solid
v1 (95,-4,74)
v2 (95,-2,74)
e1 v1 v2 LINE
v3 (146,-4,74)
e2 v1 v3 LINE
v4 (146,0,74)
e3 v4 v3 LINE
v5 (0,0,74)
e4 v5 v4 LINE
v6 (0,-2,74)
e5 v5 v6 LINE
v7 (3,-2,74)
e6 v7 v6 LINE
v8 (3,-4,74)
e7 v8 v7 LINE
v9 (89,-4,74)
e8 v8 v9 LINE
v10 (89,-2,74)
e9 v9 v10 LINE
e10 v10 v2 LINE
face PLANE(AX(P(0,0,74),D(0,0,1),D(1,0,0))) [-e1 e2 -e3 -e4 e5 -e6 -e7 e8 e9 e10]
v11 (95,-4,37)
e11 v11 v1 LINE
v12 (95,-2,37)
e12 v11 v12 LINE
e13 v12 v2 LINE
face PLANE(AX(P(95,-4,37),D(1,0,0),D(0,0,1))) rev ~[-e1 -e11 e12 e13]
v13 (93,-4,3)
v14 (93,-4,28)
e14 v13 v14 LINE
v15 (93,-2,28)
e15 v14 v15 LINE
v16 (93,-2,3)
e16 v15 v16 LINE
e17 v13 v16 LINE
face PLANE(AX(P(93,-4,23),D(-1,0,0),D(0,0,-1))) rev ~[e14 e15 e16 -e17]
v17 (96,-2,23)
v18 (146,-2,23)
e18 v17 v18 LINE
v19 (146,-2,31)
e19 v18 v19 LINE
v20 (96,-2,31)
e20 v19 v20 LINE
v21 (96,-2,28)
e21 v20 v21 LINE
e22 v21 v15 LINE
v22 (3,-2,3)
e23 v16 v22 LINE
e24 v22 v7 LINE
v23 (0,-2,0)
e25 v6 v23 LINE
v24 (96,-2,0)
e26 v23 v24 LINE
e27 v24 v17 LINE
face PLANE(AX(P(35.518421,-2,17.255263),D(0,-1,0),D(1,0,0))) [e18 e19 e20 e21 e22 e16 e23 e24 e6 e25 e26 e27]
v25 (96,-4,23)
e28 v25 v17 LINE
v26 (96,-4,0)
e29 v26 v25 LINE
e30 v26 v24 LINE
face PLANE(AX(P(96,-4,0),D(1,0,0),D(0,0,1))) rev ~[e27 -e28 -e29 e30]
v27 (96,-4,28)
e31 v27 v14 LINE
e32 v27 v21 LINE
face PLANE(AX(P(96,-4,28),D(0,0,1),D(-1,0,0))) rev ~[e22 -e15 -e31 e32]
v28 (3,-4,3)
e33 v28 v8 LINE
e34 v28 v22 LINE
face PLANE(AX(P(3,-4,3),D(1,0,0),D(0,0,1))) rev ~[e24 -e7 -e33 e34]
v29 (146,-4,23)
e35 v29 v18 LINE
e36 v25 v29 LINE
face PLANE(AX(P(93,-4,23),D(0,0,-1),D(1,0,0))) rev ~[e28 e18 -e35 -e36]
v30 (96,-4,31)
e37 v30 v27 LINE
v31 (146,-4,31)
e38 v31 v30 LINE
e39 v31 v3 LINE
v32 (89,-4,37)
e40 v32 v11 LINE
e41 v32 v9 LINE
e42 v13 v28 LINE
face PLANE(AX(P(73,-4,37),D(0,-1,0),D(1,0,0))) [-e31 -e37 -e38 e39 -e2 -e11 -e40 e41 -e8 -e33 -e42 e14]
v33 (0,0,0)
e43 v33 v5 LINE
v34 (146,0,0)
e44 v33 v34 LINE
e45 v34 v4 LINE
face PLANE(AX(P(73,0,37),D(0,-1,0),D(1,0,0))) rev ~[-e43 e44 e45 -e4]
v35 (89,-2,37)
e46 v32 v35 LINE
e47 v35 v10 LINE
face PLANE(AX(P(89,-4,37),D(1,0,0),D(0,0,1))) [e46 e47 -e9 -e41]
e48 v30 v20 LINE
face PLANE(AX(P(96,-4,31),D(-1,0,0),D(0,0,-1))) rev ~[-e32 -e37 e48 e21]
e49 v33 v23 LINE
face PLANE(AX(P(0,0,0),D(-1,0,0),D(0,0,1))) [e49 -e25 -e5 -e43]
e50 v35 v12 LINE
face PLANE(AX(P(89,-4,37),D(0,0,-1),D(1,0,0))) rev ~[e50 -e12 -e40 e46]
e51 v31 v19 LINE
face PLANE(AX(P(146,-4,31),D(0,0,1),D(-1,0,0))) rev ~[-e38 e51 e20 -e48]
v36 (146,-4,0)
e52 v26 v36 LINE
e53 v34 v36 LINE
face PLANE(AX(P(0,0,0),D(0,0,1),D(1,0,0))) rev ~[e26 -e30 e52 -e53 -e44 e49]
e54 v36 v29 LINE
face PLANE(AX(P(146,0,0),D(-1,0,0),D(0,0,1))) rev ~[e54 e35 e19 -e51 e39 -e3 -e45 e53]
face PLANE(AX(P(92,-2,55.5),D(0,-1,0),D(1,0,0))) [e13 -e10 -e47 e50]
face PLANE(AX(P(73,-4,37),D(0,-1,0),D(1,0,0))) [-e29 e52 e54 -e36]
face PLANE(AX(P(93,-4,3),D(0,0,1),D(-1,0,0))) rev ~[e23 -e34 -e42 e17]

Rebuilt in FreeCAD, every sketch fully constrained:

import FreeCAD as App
import Part
import Sketcher

V = App.Vector


def add_polygon(sketch, points):
    """Adds a closed chain of lines whose ends are joined by coincident constraints."""
    first, n = sketch.GeometryCount, len(points)
    for a, b in zip(points, points[1:] + points[:1]):
        sketch.addGeometry(Part.LineSegment(App.Vector(*a, 0), App.Vector(*b, 0)), False)
    for i in range(n):
        sketch.addConstraint(Sketcher.Constraint("Coincident", first + i, 2, first + (i + 1) % n, 1))

doc = App.newDocument("Part")
body = doc.addObject("PartDesign::Body", "Body")

# Sketch on XZ plane
sketch1 = body.newObject("Sketcher::SketchObject", "Sketch")
sketch1.AttachmentSupport = (doc.getObject("XZ_Plane"), [""])
sketch1.MapMode = "FlatFace"
add_polygon(sketch1, [(0, 74), (0, 0), (146, 0), (146, 74)])  # lines 0-3
sketch1.addConstraint([
    Sketcher.Constraint("Vertical", 0),
    Sketcher.Constraint("Horizontal", 1),
    Sketcher.Constraint("Vertical", 2),
    Sketcher.Constraint("Horizontal", 3),
    Sketcher.Constraint("Coincident", 0, 2, -1, 1),
    Sketcher.Constraint("DistanceX", 1, 1, 1, 2, 146.0),
    Sketcher.Constraint("DistanceY", 0, 2, 0, 1, 74.0),
])
pad1 = body.newObject("PartDesign::Pad", "Pad")
pad1.Profile = sketch1
pad1.Length = 4

# Sketch on XZ plane
sketch2 = body.newObject("Sketcher::SketchObject", "Sketch001")
sketch2.AttachmentSupport = (doc.getObject("XZ_Plane"), [""])
sketch2.MapMode = "FlatFace"
sketch2.AttachmentOffset = App.Placement(V(0, 0, 4), App.Rotation())
add_polygon(sketch2, [(3, 3), (3, 74), (0, 74), (0, 0), (96, 0), (96, 23), (93, 23), (93, 3)])  # lines 0-7
sketch2.addConstraint([
    Sketcher.Constraint("Vertical", 0),
    Sketcher.Constraint("Horizontal", 1),
    Sketcher.Constraint("Vertical", 2),
    Sketcher.Constraint("Horizontal", 3),
    Sketcher.Constraint("Vertical", 4),
    Sketcher.Constraint("Horizontal", 5),
    Sketcher.Constraint("Vertical", 6),
    Sketcher.Constraint("Horizontal", 7),
    Sketcher.Constraint("Coincident", 2, 2, -1, 1),
    Sketcher.Constraint("Equal", 1, 5),
    Sketcher.Constraint("DistanceX", 1, 2, 1, 1, 3.0),
    Sketcher.Constraint("DistanceX", 3, 1, 3, 2, 96.0),
    Sketcher.Constraint("DistanceY", 0, 1, 0, 2, 71.0),
    Sketcher.Constraint("DistanceY", 2, 2, 2, 1, 74.0),
    Sketcher.Constraint("DistanceY", 4, 1, 4, 2, 23.0),
])
pocket1 = body.newObject("PartDesign::Pocket", "Pocket")
pocket1.Profile = sketch2
pocket1.Length = 2

# Sketch on XZ plane
sketch3 = body.newObject("Sketcher::SketchObject", "Sketch002")
sketch3.AttachmentSupport = (doc.getObject("XZ_Plane"), [""])
sketch3.MapMode = "FlatFace"
sketch3.AttachmentOffset = App.Placement(V(0, 0, 4), App.Rotation())
add_polygon(sketch3, [(89, 74), (89, 37), (95, 37), (95, 74)])  # lines 0-3
sketch3.addConstraint([
    Sketcher.Constraint("Vertical", 0),
    Sketcher.Constraint("Horizontal", 1),
    Sketcher.Constraint("Vertical", 2),
    Sketcher.Constraint("Horizontal", 3),
    Sketcher.Constraint("DistanceX", 1, 1, 1, 2, 6.0),
    Sketcher.Constraint("DistanceY", 0, 2, 0, 1, 37.0),
    Sketcher.Constraint("DistanceX", -1, 1, 0, 2, 89.0),
    Sketcher.Constraint("DistanceY", -1, 1, 0, 2, 37.0),
])
pocket2 = body.newObject("PartDesign::Pocket", "Pocket001")
pocket2.Profile = sketch3
pocket2.Length = 2

# Sketch on XZ plane
sketch4 = body.newObject("Sketcher::SketchObject", "Sketch003")
sketch4.AttachmentSupport = (doc.getObject("XZ_Plane"), [""])
sketch4.MapMode = "FlatFace"
sketch4.AttachmentOffset = App.Placement(V(0, 0, 4), App.Rotation())
add_polygon(sketch4, [(93, 28), (93, 23), (146, 23), (146, 31), (96, 31), (96, 28)])  # lines 0-5
sketch4.addConstraint([
    Sketcher.Constraint("Vertical", 0),
    Sketcher.Constraint("Horizontal", 1),
    Sketcher.Constraint("Vertical", 2),
    Sketcher.Constraint("Horizontal", 3),
    Sketcher.Constraint("Vertical", 4),
    Sketcher.Constraint("Horizontal", 5),
    Sketcher.Constraint("Equal", 5, 4),
    Sketcher.Constraint("DistanceX", 1, 1, 1, 2, 53.0),
    Sketcher.Constraint("DistanceX", 3, 2, 3, 1, 50.0),
    Sketcher.Constraint("DistanceY", 0, 2, 0, 1, 5.0),
    Sketcher.Constraint("DistanceX", -1, 1, 0, 2, 93.0),
    Sketcher.Constraint("DistanceY", -1, 1, 0, 2, 23.0),
])
pocket3 = body.newObject("PartDesign::Pocket", "Pocket002")
pocket3.Profile = sketch4
pocket3.Length = 2

doc.recompute()
